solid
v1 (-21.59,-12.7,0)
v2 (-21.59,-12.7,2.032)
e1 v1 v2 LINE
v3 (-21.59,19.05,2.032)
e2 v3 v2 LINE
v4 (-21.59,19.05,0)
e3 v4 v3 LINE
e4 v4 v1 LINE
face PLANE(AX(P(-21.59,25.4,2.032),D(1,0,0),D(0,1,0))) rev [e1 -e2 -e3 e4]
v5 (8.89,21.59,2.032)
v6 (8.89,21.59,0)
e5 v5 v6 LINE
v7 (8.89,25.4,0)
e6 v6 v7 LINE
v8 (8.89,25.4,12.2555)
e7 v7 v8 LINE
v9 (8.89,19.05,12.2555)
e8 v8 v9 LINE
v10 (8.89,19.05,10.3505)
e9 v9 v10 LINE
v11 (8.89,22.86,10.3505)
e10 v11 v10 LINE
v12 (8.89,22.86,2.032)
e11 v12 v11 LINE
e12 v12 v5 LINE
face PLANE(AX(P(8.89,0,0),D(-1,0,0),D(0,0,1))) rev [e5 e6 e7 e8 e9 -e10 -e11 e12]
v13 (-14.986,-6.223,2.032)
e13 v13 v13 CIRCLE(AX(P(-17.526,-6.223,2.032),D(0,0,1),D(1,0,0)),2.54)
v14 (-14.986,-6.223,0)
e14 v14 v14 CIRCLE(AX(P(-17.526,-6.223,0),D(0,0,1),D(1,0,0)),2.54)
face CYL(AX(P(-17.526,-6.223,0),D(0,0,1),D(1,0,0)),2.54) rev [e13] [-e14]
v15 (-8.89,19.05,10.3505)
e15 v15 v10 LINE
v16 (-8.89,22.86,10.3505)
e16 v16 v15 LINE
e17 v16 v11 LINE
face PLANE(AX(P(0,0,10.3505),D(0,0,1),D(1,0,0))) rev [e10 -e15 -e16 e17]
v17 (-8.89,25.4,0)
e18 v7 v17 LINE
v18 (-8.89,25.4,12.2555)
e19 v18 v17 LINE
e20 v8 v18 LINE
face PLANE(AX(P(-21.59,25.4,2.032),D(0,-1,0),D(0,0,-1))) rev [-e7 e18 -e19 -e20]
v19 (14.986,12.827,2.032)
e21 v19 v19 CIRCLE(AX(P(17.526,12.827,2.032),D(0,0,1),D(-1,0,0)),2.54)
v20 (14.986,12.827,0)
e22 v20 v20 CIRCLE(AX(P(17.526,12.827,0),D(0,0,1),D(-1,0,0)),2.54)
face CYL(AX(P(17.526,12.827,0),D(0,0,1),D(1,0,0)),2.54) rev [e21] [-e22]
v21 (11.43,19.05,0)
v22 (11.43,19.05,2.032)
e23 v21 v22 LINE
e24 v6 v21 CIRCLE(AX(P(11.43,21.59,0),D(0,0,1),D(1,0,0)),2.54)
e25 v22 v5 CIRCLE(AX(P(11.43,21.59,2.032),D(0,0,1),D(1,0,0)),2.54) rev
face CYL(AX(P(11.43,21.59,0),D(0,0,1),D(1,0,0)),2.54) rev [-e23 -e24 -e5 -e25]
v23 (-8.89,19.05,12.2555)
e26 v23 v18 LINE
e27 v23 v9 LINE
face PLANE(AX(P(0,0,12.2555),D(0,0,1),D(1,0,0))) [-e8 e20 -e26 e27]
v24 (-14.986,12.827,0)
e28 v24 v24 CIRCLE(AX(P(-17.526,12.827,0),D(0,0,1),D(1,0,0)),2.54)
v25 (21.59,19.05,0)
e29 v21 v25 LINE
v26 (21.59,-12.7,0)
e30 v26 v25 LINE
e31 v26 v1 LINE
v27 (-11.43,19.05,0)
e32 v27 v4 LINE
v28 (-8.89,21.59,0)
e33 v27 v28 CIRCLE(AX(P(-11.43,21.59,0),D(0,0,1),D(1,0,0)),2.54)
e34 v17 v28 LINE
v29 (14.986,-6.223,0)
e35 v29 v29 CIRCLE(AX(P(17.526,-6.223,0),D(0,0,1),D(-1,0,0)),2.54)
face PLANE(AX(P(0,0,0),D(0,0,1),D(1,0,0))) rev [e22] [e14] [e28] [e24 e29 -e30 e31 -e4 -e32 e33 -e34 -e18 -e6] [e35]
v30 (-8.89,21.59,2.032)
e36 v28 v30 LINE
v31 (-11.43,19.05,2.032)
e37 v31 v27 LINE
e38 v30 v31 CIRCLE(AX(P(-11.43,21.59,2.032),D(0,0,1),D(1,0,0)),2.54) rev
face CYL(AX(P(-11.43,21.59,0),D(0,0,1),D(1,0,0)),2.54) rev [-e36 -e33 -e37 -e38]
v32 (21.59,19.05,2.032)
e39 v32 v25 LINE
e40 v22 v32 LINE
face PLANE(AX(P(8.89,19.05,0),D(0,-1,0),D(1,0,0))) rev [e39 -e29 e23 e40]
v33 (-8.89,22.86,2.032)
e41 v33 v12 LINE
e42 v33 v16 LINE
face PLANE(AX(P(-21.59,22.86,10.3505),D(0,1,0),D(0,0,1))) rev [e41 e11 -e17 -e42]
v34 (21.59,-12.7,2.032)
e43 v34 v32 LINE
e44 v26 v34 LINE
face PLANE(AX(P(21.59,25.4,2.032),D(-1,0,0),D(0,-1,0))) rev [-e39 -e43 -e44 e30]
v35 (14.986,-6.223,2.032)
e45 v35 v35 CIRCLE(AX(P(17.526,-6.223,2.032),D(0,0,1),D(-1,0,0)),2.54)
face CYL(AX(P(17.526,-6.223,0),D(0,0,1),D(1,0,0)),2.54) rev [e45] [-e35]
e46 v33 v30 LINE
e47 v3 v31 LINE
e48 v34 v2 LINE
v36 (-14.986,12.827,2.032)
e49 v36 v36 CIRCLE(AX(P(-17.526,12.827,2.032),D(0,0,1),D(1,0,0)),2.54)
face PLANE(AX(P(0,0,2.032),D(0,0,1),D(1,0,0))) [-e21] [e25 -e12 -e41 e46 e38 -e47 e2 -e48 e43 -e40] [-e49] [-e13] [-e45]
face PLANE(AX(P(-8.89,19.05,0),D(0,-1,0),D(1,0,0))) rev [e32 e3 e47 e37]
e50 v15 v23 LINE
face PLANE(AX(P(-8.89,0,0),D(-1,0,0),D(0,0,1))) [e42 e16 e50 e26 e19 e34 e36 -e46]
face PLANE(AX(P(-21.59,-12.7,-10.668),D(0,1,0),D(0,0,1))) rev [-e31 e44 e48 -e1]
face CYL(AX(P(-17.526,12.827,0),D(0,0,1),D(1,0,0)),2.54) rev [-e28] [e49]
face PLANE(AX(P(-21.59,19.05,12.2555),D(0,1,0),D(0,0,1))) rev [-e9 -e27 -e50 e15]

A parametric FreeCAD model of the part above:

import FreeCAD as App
import Part
import Sketcher
from FreeCAD import Vector
Q = App.Units.Quantity


def edges_at(feature, points):
    """Names of the edges that pass closest to the given points."""
    edges = feature.Shape.Edges
    near = lambda p: min(range(len(edges)), key=lambda i: edges[i].distToShape(Part.Vertex(*p))[0])
    return sorted({f"Edge{near(p) + 1}" for p in points})

doc = App.newDocument("Part")
body = doc.addObject("PartDesign::Body", "Body")

# Sketch on XY plane
sketch1 = body.newObject("Sketcher::SketchObject", "Sketch")
sketch1.AttachmentSupport = (doc.getObject("XY_Plane"), [""])
sketch1.MapMode = "FlatFace"
sketch1.addGeometry([
    Part.LineSegment(Vector(-22, 25, 0), Vector(-22, -25, 0)),
    Part.LineSegment(Vector(-22, -25, 0), Vector(22, -25, 0)),
    Part.LineSegment(Vector(22, -25, 0), Vector(22, 25, 0)),
    Part.LineSegment(Vector(22, 25, 0), Vector(-22, 25, 0)),
], False)
sketch1.addConstraint([
    Sketcher.Constraint("Coincident", 0, 2, 1, 1),
    Sketcher.Constraint("Coincident", 1, 2, 2, 1),
    Sketcher.Constraint("Coincident", 2, 2, 3, 1),
    Sketcher.Constraint("Coincident", 3, 2, 0, 1),
    Sketcher.Constraint("Vertical", 0),
    Sketcher.Constraint("Horizontal", 1),
    Sketcher.Constraint("Vertical", 2),
    Sketcher.Constraint("Horizontal", 3),
    Sketcher.Constraint("Symmetric", 0, 2, 2, 2, -1, 1),
    Sketcher.Constraint("DistanceY", 0, 2, 0, 1, Q("2 in")),
    Sketcher.Constraint("DistanceX", 1, 1, 1, 2, Q("1.7 in")),
])
pad1 = body.newObject("PartDesign::Pad", "Pad")
pad1.Profile = sketch1
pad1.Length = Q("0.08 in")

# Sketch on XY plane
sketch2 = body.newObject("Sketcher::SketchObject", "Sketch001")
sketch2.AttachmentSupport = (doc.getObject("XY_Plane"), [""])
sketch2.MapMode = "FlatFace"
sketch2.AttachmentOffset = App.Placement(Vector(0, 0, 0.08 * 25.4), App.Rotation())
sketch2.addGeometry([
    Part.Circle(Vector(-17.5, 12.8, 0), Vector(0, 0, 1), 2.5),
    Part.Circle(Vector(-17.5, -6.2, 0), Vector(0, 0, 1), 2.5),
    Part.Circle(Vector(17.5, -6.2, 0), Vector(0, 0, 1), 2.5),
    Part.Circle(Vector(17.5, 12.8, 0), Vector(0, 0, 1), 2.5),
], False)
sketch2.addConstraint([
    Sketcher.Constraint("Equal", 0, 1),
    Sketcher.Constraint("Equal", 1, 2),
    Sketcher.Constraint("Equal", 2, 3),
    Sketcher.Constraint("Symmetric", 1, 3, 2, 3, -2),
    Sketcher.Constraint("Symmetric", 0, 3, 3, 3, -2),
    Sketcher.Constraint("Vertical", 0, 3, 1, 3),
    Sketcher.Constraint("Diameter", 0, Q("0.2 in")),
    Sketcher.Constraint("DistanceX", 0, 3, -1, 1, Q("0.69 in")),
    Sketcher.Constraint("DistanceY", 1, 3, 0, 3, Q("0.75 in")),
    Sketcher.Constraint("DistanceY", -1, 1, 0, 3, Q("0.505 in")),
])
pocket1 = body.newObject("PartDesign::Pocket", "Pocket")
pocket1.Profile = sketch2
pocket1.Type = "ThroughAll"

# Sketch on XY plane
sketch3 = body.newObject("Sketcher::SketchObject", "Sketch002")
sketch3.AttachmentSupport = (doc.getObject("XY_Plane"), [""])
sketch3.MapMode = "FlatFace"
sketch3.AttachmentOffset = App.Placement(Vector(0, 0, 0.08 * 25.4), App.Rotation())
sketch3.addGeometry([
    Part.LineSegment(Vector(-21.6, 25.4, 0), Vector(-21.6, 22.9, 0)),
    Part.LineSegment(Vector(-21.6, 22.9, 0), Vector(21.6, 22.9, 0)),
    Part.LineSegment(Vector(21.6, 22.9, 0), Vector(21.6, 25.4, 0)),
    Part.LineSegment(Vector(21.6, 25.4, 0), Vector(-21.6, 25.4, 0)),
], False)
sketch3.addConstraint([
    Sketcher.Constraint("Coincident", 0, 2, 1, 1),
    Sketcher.Constraint("Coincident", 1, 2, 2, 1),
    Sketcher.Constraint("Coincident", 2, 2, 3, 1),
    Sketcher.Constraint("Coincident", 3, 2, 0, 1),
    Sketcher.Constraint("Vertical", 0),
    Sketcher.Constraint("Horizontal", 1),
    Sketcher.Constraint("Vertical", 2),
    Sketcher.Constraint("Horizontal", 3),
    Sketcher.Constraint("DistanceX", 1, 1, 1, 2, Q("1.7 in")),
    Sketcher.Constraint("DistanceY", 0, 2, 0, 1, Q("0.1 in")),
    Sketcher.Constraint("DistanceY", -1, 1, 2, 2, Q("1 in")),
    Sketcher.Constraint("DistanceX", 0, 2, -1, 1, Q("0.85 in")),
])
pad2 = body.newObject("PartDesign::Pad", "Pad001")
pad2.Profile = sketch3
pad2.Length = Q("0.3275 in")

# Sketch on XY plane
sketch4 = body.newObject("Sketcher::SketchObject", "Sketch003")
sketch4.AttachmentSupport = (doc.getObject("XY_Plane"), [""])
sketch4.MapMode = "FlatFace"
sketch4.AttachmentOffset = App.Placement(Vector(0, 0, 0.4075 * 25.4), App.Rotation())
sketch4.addGeometry([
    Part.LineSegment(Vector(-22, 25, 0), Vector(-22, 19, 0)),
    Part.LineSegment(Vector(-22, 19, 0), Vector(22, 19, 0)),
    Part.LineSegment(Vector(22, 19, 0), Vector(22, 25, 0)),
    Part.LineSegment(Vector(22, 25, 0), Vector(-22, 25, 0)),
], False)
sketch4.addConstraint([
    Sketcher.Constraint("Coincident", 0, 2, 1, 1),
    Sketcher.Constraint("Coincident", 1, 2, 2, 1),
    Sketcher.Constraint("Coincident", 2, 2, 3, 1),
    Sketcher.Constraint("Coincident", 3, 2, 0, 1),
    Sketcher.Constraint("Vertical", 0),
    Sketcher.Constraint("Horizontal", 1),
    Sketcher.Constraint("Vertical", 2),
    Sketcher.Constraint("Horizontal", 3),
    Sketcher.Constraint("DistanceX", 1, 1, 1, 2, Q("1.7 in")),
    Sketcher.Constraint("DistanceY", -1, 1, 2, 2, Q("1 in")),
    Sketcher.Constraint("DistanceY", 0, 2, 0, 1, Q("0.25 in")),
    Sketcher.Constraint("DistanceX", 0, 2, -1, 1, Q("0.85 in")),
])
pad3 = body.newObject("PartDesign::Pad", "Pad002")
pad3.Profile = sketch4
pad3.Length = Q("0.075 in")

# Sketch on YZ plane
sketch5 = body.newObject("Sketcher::SketchObject", "Sketch004")
sketch5.AttachmentSupport = (doc.getObject("YZ_Plane"), [""])
sketch5.MapMode = "FlatFace"
sketch5.AttachmentOffset = App.Placement(Vector(0, 0, 0.85 * 25.4), App.Rotation())
sketch5.addGeometry([
    Part.LineSegment(Vector(25, 12, 0), Vector(19, 12, 0)),
    Part.LineSegment(Vector(19, 12, 0), Vector(19, 0, 0)),
    Part.LineSegment(Vector(19, 0, 0), Vector(25, 0, 0)),
    Part.LineSegment(Vector(25, 0, 0), Vector(25, 12, 0)),
], False)
sketch5.addConstraint([
    Sketcher.Constraint("Coincident", 0, 2, 1, 1),
    Sketcher.Constraint("Coincident", 1, 2, 2, 1),
    Sketcher.Constraint("Coincident", 2, 2, 3, 1),
    Sketcher.Constraint("Coincident", 3, 2, 0, 1),
    Sketcher.Constraint("Horizontal", 0),
    Sketcher.Constraint("Vertical", 1),
    Sketcher.Constraint("Horizontal", 2),
    Sketcher.Constraint("Vertical", 3),
    Sketcher.Constraint("PointOnObject", 1, 2, -1),
    Sketcher.Constraint("DistanceX", -1, 1, 2, 2, Q("1 in")),
    Sketcher.Constraint("DistanceX", 0, 2, 0, 1, Q("0.25 in")),
    Sketcher.Constraint("DistanceY", 1, 2, 1, 1, Q("0.4825 in")),
])
pocket2 = body.newObject("PartDesign::Pocket", "Pocket001")
pocket2.Profile = sketch5
pocket2.Length = Q("0.5 in")

# Sketch on YZ plane
sketch6 = body.newObject("Sketcher::SketchObject", "Sketch005")
sketch6.AttachmentSupport = (doc.getObject("YZ_Plane"), [""])
sketch6.MapMode = "FlatFace"
sketch6.AttachmentOffset = App.Placement(Vector(0, 0, -0.85 * 25.4), App.Rotation())
sketch6.addGeometry([
    Part.LineSegment(Vector(25, 0, 0), Vector(19, 0, 0)),
    Part.LineSegment(Vector(19, 0, 0), Vector(19, 12, 0)),
    Part.LineSegment(Vector(19, 12, 0), Vector(25, 12, 0)),
    Part.LineSegment(Vector(25, 12, 0), Vector(25, 0, 0)),
], False)
sketch6.addConstraint([
    Sketcher.Constraint("Coincident", 0, 2, 1, 1),
    Sketcher.Constraint("Coincident", 1, 2, 2, 1),
    Sketcher.Constraint("Coincident", 2, 2, 3, 1),
    Sketcher.Constraint("Coincident", 3, 2, 0, 1),
    Sketcher.Constraint("Horizontal", 0),
    Sketcher.Constraint("Vertical", 1),
    Sketcher.Constraint("Horizontal", 2),
    Sketcher.Constraint("Vertical", 3),
    Sketcher.Constraint("PointOnObject", 0, 2, -1),
    Sketcher.Constraint("DistanceX", -1, 1, 2, 2, Q("1 in")),
    Sketcher.Constraint("DistanceX", 0, 2, 0, 1, Q("0.25 in")),
    Sketcher.Constraint("DistanceY", 1, 1, 1, 2, Q("0.4825 in")),
])
pocket3 = body.newObject("PartDesign::Pocket", "Pocket002")
pocket3.Profile = sketch6
pocket3.Length = Q("0.5 in")
pocket3.Reversed = True
doc.recompute()

fillet = body.newObject("PartDesign::Fillet", "Fillet")
fillet.Base = (pocket3, edges_at(pocket3, [(8.89, 19.05, 1.016), (-8.89, 19.05, 1.016)]))
fillet.Radius = Q("0.1 in")

# Sketch on XY plane
sketch7 = body.newObject("Sketcher::SketchObject", "Sketch006")
sketch7.AttachmentSupport = (doc.getObject("XY_Plane"), [""])
sketch7.MapMode = "FlatFace"
sketch7.AttachmentOffset = App.Placement(Vector(0, 0, 0.08 * 25.4), App.Rotation())
sketch7.addGeometry([
    Part.LineSegment(Vector(-22, -13, 0), Vector(-22, -25, 0)),
    Part.LineSegment(Vector(-22, -25, 0), Vector(22, -25, 0)),
    Part.LineSegment(Vector(22, -25, 0), Vector(22, -13, 0)),
    Part.LineSegment(Vector(22, -13, 0), Vector(-22, -13, 0)),
], False)
sketch7.addConstraint([
    Sketcher.Constraint("Coincident", 0, 2, 1, 1),
    Sketcher.Constraint("Coincident", 1, 2, 2, 1),
    Sketcher.Constraint("Coincident", 2, 2, 3, 1),
    Sketcher.Constraint("Coincident", 3, 2, 0, 1),
    Sketcher.Constraint("Vertical", 0),
    Sketcher.Constraint("Horizontal", 1),
    Sketcher.Constraint("Vertical", 2),
    Sketcher.Constraint("Horizontal", 3),
    Sketcher.Constraint("DistanceX", 1, 1, 1, 2, Q("1.7 in")),
    Sketcher.Constraint("DistanceY", 0, 2, 0, 1, Q("0.5 in")),
    Sketcher.Constraint("DistanceY", 0, 2, -1, 1, Q("1 in")),
    Sketcher.Constraint("DistanceX", 0, 2, -1, 1, Q("0.85 in")),
])
pocket4 = body.newObject("PartDesign::Pocket", "Pocket003")
pocket4.Profile = sketch7
pocket4.Length = Q("0.5 in")

doc.recompute()
